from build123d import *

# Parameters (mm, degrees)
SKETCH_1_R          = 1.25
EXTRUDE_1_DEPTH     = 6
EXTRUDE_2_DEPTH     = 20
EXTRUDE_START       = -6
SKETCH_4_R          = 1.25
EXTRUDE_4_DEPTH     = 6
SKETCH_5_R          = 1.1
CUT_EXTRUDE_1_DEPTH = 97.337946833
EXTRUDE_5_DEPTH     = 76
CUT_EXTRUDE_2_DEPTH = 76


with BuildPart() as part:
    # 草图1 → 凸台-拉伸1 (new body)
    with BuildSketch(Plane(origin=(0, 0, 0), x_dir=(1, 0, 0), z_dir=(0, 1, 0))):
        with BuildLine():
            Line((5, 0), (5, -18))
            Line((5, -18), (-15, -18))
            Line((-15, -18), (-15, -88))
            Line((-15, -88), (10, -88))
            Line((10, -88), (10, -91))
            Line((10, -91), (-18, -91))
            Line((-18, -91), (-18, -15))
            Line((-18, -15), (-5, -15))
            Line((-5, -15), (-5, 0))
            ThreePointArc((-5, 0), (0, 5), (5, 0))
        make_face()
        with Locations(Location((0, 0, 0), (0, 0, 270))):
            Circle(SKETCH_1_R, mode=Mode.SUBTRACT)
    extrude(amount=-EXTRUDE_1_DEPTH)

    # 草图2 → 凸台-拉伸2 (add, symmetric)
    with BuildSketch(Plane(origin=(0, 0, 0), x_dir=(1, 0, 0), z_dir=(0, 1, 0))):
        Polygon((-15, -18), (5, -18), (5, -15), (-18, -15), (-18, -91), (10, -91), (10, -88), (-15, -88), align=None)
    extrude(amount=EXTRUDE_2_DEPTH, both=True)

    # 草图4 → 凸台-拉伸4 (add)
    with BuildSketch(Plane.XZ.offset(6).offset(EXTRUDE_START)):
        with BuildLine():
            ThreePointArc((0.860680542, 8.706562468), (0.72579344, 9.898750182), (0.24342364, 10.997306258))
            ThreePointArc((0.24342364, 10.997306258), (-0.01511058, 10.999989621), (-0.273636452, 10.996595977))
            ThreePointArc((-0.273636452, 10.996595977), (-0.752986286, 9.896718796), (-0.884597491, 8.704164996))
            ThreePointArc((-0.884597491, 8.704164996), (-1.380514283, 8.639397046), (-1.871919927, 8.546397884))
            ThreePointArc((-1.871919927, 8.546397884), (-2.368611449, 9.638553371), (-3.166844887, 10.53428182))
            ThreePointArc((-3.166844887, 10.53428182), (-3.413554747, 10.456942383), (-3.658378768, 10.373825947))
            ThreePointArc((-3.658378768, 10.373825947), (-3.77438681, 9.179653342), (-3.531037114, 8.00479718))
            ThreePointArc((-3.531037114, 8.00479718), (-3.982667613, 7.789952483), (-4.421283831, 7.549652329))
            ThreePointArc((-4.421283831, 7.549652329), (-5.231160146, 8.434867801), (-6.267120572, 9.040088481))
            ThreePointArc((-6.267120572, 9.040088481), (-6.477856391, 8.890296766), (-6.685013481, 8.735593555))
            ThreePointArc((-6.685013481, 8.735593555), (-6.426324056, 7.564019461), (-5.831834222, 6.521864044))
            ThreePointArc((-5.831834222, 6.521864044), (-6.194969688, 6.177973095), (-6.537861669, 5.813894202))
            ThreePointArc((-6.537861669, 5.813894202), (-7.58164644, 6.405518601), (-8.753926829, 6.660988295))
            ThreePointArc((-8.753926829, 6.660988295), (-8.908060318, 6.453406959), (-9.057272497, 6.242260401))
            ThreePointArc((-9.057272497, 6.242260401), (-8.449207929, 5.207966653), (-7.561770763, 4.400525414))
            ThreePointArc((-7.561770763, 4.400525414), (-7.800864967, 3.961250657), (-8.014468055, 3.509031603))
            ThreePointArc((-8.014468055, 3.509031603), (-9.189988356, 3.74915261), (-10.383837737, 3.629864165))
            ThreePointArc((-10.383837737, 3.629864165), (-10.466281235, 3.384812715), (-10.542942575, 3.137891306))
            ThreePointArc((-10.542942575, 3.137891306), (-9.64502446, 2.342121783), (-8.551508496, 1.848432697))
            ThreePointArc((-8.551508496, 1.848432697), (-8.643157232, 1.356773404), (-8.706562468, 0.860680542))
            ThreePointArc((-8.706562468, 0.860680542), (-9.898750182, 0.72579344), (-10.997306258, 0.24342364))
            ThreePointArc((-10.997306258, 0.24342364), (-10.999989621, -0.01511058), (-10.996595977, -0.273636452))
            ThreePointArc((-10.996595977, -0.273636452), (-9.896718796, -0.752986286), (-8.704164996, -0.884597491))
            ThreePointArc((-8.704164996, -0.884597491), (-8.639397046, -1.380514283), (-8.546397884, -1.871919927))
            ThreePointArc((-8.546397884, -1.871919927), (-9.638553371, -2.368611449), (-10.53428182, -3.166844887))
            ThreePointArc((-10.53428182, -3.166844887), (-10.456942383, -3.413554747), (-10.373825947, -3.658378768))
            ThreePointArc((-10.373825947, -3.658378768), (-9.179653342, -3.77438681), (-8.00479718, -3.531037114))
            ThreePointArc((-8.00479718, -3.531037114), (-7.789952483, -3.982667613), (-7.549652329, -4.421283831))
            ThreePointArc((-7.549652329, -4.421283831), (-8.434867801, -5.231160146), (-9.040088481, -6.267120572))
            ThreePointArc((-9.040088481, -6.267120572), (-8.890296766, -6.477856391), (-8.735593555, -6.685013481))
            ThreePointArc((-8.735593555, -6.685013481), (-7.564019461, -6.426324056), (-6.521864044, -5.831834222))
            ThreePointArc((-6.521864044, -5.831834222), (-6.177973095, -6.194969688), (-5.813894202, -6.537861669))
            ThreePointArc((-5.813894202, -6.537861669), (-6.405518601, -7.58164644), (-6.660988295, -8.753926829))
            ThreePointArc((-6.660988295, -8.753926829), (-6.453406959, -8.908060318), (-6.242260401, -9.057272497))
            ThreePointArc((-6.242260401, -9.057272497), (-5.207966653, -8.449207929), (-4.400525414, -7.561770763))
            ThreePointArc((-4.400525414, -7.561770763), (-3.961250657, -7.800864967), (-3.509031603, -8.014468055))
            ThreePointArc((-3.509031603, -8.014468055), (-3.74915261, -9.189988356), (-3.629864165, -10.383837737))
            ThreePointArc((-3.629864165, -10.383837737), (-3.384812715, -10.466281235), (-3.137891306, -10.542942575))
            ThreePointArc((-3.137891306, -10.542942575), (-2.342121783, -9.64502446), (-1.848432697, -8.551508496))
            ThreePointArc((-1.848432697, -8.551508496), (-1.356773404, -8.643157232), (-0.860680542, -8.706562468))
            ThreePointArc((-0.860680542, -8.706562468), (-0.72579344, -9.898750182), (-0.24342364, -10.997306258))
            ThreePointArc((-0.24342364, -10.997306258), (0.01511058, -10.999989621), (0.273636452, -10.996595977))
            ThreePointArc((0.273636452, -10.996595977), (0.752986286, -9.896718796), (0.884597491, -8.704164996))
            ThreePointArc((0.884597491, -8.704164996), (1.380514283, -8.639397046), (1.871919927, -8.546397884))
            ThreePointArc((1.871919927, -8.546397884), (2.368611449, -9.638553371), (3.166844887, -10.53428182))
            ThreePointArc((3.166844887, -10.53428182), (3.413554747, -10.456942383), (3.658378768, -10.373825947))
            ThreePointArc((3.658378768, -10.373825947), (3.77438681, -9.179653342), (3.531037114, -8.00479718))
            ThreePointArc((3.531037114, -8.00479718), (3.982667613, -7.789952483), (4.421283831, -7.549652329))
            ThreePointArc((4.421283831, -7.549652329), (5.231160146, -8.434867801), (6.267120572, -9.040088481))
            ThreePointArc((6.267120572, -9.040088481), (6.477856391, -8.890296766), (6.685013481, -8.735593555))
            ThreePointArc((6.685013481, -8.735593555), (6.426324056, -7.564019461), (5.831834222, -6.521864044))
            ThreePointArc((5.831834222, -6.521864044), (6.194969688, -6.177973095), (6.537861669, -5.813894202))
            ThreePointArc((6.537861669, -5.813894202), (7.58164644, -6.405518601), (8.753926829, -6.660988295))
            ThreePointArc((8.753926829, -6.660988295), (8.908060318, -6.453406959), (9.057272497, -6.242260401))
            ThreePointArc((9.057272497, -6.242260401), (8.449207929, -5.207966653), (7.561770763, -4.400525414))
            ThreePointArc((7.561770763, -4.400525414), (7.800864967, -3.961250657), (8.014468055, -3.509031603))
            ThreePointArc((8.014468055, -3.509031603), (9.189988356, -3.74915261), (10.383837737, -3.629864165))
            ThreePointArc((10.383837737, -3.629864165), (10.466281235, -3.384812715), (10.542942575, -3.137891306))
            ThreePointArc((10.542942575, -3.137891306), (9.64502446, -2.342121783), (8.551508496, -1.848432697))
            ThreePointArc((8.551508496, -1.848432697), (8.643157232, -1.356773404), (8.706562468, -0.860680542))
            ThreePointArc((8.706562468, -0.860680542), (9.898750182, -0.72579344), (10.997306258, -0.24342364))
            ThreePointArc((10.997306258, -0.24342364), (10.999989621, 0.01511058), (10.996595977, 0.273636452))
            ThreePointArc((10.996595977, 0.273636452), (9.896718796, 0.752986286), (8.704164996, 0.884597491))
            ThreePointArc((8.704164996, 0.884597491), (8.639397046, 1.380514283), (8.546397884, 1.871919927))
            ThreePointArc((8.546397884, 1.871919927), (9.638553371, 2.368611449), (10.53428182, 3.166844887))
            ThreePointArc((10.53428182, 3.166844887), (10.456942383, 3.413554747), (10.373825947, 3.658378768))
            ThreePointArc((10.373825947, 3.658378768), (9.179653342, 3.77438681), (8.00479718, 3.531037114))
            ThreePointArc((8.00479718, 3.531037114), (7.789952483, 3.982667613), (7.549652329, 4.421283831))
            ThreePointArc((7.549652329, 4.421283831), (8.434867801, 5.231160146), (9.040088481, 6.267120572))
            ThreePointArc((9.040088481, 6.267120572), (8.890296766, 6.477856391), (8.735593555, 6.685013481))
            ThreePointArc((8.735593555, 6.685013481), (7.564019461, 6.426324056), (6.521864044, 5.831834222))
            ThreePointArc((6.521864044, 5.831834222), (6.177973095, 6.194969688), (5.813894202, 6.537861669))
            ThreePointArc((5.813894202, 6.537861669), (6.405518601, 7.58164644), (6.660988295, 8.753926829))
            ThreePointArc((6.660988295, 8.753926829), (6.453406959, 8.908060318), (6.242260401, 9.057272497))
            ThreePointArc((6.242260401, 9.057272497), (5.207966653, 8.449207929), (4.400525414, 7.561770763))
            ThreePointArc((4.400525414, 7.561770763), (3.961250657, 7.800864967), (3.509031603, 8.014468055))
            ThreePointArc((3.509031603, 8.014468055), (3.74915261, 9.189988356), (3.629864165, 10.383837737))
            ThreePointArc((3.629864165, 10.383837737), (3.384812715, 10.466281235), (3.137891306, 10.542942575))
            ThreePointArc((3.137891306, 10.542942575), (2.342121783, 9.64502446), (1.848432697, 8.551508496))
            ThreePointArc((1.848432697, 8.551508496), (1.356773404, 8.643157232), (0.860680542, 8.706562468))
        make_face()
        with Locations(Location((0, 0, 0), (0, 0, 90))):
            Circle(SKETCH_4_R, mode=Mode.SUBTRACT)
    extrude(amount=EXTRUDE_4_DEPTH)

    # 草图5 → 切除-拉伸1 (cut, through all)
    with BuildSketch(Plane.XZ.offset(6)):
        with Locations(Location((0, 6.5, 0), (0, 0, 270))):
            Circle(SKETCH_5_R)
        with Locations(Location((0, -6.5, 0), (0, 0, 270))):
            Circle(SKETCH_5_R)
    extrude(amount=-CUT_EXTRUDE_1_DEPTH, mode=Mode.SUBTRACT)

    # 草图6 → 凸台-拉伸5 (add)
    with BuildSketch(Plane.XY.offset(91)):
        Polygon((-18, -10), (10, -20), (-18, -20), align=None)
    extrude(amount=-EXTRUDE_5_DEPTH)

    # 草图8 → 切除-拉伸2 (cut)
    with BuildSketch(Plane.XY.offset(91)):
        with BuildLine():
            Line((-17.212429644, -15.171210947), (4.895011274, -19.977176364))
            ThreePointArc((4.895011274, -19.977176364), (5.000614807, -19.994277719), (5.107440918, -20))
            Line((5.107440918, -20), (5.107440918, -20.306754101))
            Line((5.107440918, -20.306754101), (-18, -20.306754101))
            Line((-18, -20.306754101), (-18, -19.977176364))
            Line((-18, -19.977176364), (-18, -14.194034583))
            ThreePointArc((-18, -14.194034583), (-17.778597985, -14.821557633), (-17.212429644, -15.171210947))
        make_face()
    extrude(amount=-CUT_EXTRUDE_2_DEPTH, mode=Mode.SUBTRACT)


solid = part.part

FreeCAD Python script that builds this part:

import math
import FreeCAD as App
import Part
import Sketcher
from FreeCAD import Vector
Q = App.Units.Quantity


def add_polygon(sketch, points):
    """Adds a closed chain of lines whose ends are joined by coincident constraints."""
    first, n = sketch.GeometryCount, len(points)
    for a, b in zip(points, points[1:] + points[:1]):
        sketch.addGeometry(Part.LineSegment(App.Vector(*a, 0), App.Vector(*b, 0)), False)
    for i in range(n):
        sketch.addConstraint(Sketcher.Constraint("Coincident", first + i, 2, first + (i + 1) % n, 1))

doc = App.newDocument("Part")
body = doc.addObject("PartDesign::Body", "Body")

# Sketch on XZ plane
sketch1 = body.newObject("Sketcher::SketchObject", "Sketch")
sketch1.AttachmentSupport = (doc.getObject("XZ_Plane"), [""])
sketch1.MapMode = "FlatFace"
sketch1.addGeometry([
    Part.LineSegment(Vector(5, 18, 0), Vector(5, 0, 0)),  # 0
    Part.ArcOfCircle(Part.Circle(Vector(0, 0, 0), Vector(0, 0, 1), 5), math.radians(180), math.radians(360)),  # 1
    Part.LineSegment(Vector(-5, 0, 0), Vector(-5, 15, 0)),  # 2
    Part.LineSegment(Vector(-5, 15, 0), Vector(-18, 15, 0)),  # 3
    Part.LineSegment(Vector(-18, 15, 0), Vector(-18, 91, 0)),  # 4
    Part.LineSegment(Vector(-18, 91, 0), Vector(10, 91, 0)),  # 5
    Part.LineSegment(Vector(10, 91, 0), Vector(10, 88, 0)),  # 6
    Part.LineSegment(Vector(10, 88, 0), Vector(-15, 88, 0)),  # 7
    Part.LineSegment(Vector(-15, 88, 0), Vector(-15, 18, 0)),  # 8
    Part.LineSegment(Vector(-15, 18, 0), Vector(5, 18, 0)),  # 9
    Part.Circle(Vector(0, 0, 0), Vector(0, 0, 1), 1.2),  # 10
], False)
sketch1.addConstraint([
    Sketcher.Constraint("Tangent", 0, 2, 1, 2),
    Sketcher.Constraint("Tangent", 1, 1, 2, 1),
    Sketcher.Constraint("Coincident", 2, 2, 3, 1),
    Sketcher.Constraint("Coincident", 3, 2, 4, 1),
    Sketcher.Constraint("Coincident", 4, 2, 5, 1),
    Sketcher.Constraint("Coincident", 5, 2, 6, 1),
    Sketcher.Constraint("Coincident", 6, 2, 7, 1),
    Sketcher.Constraint("Coincident", 7, 2, 8, 1),
    Sketcher.Constraint("Coincident", 8, 2, 9, 1),
    Sketcher.Constraint("Coincident", 9, 2, 0, 1),
    Sketcher.Constraint("Vertical", 0),
    Sketcher.Constraint("Vertical", 2),
    Sketcher.Constraint("Horizontal", 3),
    Sketcher.Constraint("Vertical", 4),
    Sketcher.Constraint("Horizontal", 5),
    Sketcher.Constraint("Vertical", 6),
    Sketcher.Constraint("Horizontal", 7),
    Sketcher.Constraint("Vertical", 8),
    Sketcher.Constraint("Horizontal", 9),
    Sketcher.Constraint("Coincident", 1, 3, -1, 1),
    Sketcher.Constraint("Coincident", 10, 3, -1, 1),
    Sketcher.Constraint("Radius", 1, Q("5 mm")),
    Sketcher.Constraint("Diameter", 10, Q("2.5 mm")),
    Sketcher.Constraint("DistanceX", 3, 2, 3, 1, Q("13 mm")),
    Sketcher.Constraint("DistanceX", 5, 1, 5, 2, Q("28 mm")),
    Sketcher.Constraint("DistanceX", 7, 2, 7, 1, Q("25 mm")),
    Sketcher.Constraint("DistanceY", 0, 2, 0, 1, Q("18 mm")),
    Sketcher.Constraint("DistanceY", 2, 1, 2, 2, Q("15 mm")),
    Sketcher.Constraint("DistanceY", 4, 1, 4, 2, Q("76 mm")),
    Sketcher.Constraint("DistanceY", 6, 2, 6, 1, Q("3 mm")),
])
pad1 = body.newObject("PartDesign::Pad", "Pad")
pad1.Profile = sketch1
pad1.Length = 6

# Sketch on XZ plane
sketch2 = body.newObject("Sketcher::SketchObject", "Sketch001")
sketch2.AttachmentSupport = (doc.getObject("XZ_Plane"), [""])
sketch2.MapMode = "FlatFace"
add_polygon(sketch2, [(-15, 18), (5, 18), (5, 15), (-18, 15), (-18, 91), (10, 91), (10, 88), (-15, 88)])  # lines 0-7
sketch2.addConstraint([
    Sketcher.Constraint("Horizontal", 0),
    Sketcher.Constraint("Vertical", 1),
    Sketcher.Constraint("Horizontal", 2),
    Sketcher.Constraint("Vertical", 3),
    Sketcher.Constraint("Horizontal", 4),
    Sketcher.Constraint("Vertical", 5),
    Sketcher.Constraint("Horizontal", 6),
    Sketcher.Constraint("Vertical", 7),
    Sketcher.Constraint("Equal", 1, 5),
    Sketcher.Constraint("DistanceX", 0, 1, 0, 2, Q("20 mm")),
    Sketcher.Constraint("DistanceX", 2, 2, 2, 1, Q("23 mm")),
    Sketcher.Constraint("DistanceX", 4, 1, 4, 2, Q("28 mm")),
    Sketcher.Constraint("DistanceY", 1, 2, 1, 1, Q("3 mm")),
    Sketcher.Constraint("DistanceY", 3, 1, 3, 2, Q("76 mm")),
    Sketcher.Constraint("DistanceX", -1, 1, 0, 2, Q("5 mm")),
    Sketcher.Constraint("DistanceY", -1, 1, 0, 2, Q("18 mm")),
])
pad2 = body.newObject("PartDesign::Pad", "Pad001")
pad2.Profile = sketch2
pad2.Length = 40
pad2.Midplane = True

# Sketch on XZ plane
sketch3 = body.newObject("Sketcher::SketchObject", "Sketch002")
sketch3.AttachmentSupport = (doc.getObject("XZ_Plane"), [""])
sketch3.MapMode = "FlatFace"
sketch3.addGeometry([
    Part.ArcOfCircle(Part.Circle(Vector(-3.1, 8.9, 0), Vector(0, 0, 1), 4), math.radians(-2), math.radians(32)),  # 0
    Part.ArcOfCircle(Part.Circle(Vector(0, 0, 0), Vector(0, 0, 1), 11), math.radians(88.73), math.radians(91.43)),  # 1
    Part.ArcOfCircle(Part.Circle(Vector(3.1, 8.9, 0), Vector(0, 0, 1), 4), math.radians(148), math.radians(182)),  # 2
    Part.ArcOfCircle(Part.Circle(Vector(0, 0, 0), Vector(0, 0, 1), 8.7), math.radians(95.8), math.radians(102.35)),  # 3
    Part.ArcOfCircle(Part.Circle(Vector(-5.7, 7.5, 0), Vector(0, 0, 1), 4), math.radians(16), math.radians(50)),  # 4
    Part.ArcOfCircle(Part.Circle(Vector(0, 0, 0), Vector(0, 0, 1), 11), math.radians(106.73), math.radians(109.43)),  # 5
    Part.ArcOfCircle(Part.Circle(Vector(0.2, 9.4, 0), Vector(0, 0, 1), 4), math.radians(166), math.radians(200)),  # 6
    Part.ArcOfCircle(Part.Circle(Vector(0, 0, 0), Vector(0, 0, 1), 8.7), math.radians(113.8), math.radians(120.35)),  # 7
    Part.ArcOfCircle(Part.Circle(Vector(-7.7, 5.3, 0), Vector(0, 0, 1), 4), math.radians(34), math.radians(68)),  # 8
    Part.ArcOfCircle(Part.Circle(Vector(0, 0, 0), Vector(0, 0, 1), 11), math.radians(124.73), math.radians(127.43)),  # 9
    Part.ArcOfCircle(Part.Circle(Vector(-2.7, 9, 0), Vector(0, 0, 1), 4), math.radians(-176), math.radians(-142)),  # 10
    Part.ArcOfCircle(Part.Circle(Vector(0, 0, 0), Vector(0, 0, 1), 8.7), math.radians(131.8), math.radians(138.35)),  # 11
    Part.ArcOfCircle(Part.Circle(Vector(-9, 2.7, 0), Vector(0, 0, 1), 4), math.radians(52), math.radians(86)),  # 12
    Part.ArcOfCircle(Part.Circle(Vector(0, 0, 0), Vector(0, 0, 1), 11), math.radians(142.73), math.radians(145.43)),  # 13
    Part.ArcOfCircle(Part.Circle(Vector(-5.3, 7.7, 0), Vector(0, 0, 1), 4), math.radians(-158), math.radians(-124)),  # 14
    Part.ArcOfCircle(Part.Circle(Vector(0, 0, 0), Vector(0, 0, 1), 8.7), math.radians(149.8), math.radians(156.35)),  # 15
    Part.ArcOfCircle(Part.Circle(Vector(-9.4, -0.2, 0), Vector(0, 0, 1), 4), math.radians(70), math.radians(104)),  # 16
    Part.ArcOfCircle(Part.Circle(Vector(0, 0, 0), Vector(0, 0, 1), 11), math.radians(160.73), math.radians(163.43)),  # 17
    Part.ArcOfCircle(Part.Circle(Vector(-7.5, 5.7, 0), Vector(0, 0, 1), 4), math.radians(-140), math.radians(-106)),  # 18
    Part.ArcOfCircle(Part.Circle(Vector(0, 0, 0), Vector(0, 0, 1), 8.7), math.radians(167.8), math.radians(174.35)),  # 19
    Part.ArcOfCircle(Part.Circle(Vector(-8.9, -3.1, 0), Vector(0, 0, 1), 4), math.radians(88), math.radians(122)),  # 20
    Part.ArcOfCircle(Part.Circle(Vector(0, 0, 0), Vector(0, 0, 1), 11), math.radians(178.73), math.radians(181.43)),  # 21
    Part.ArcOfCircle(Part.Circle(Vector(-8.9, 3.1, 0), Vector(0, 0, 1), 4), math.radians(-122), math.radians(-88)),  # 22
    Part.ArcOfCircle(Part.Circle(Vector(0, 0, 0), Vector(0, 0, 1), 8.7), math.radians(-174.2), math.radians(-167.65)),  # 23
    Part.ArcOfCircle(Part.Circle(Vector(-7.5, -5.7, 0), Vector(0, 0, 1), 4), math.radians(106), math.radians(140)),  # 24
    Part.ArcOfCircle(Part.Circle(Vector(0, 0, 0), Vector(0, 0, 1), 11), math.radians(-163.27), math.radians(-160.57)),  # 25
    Part.ArcOfCircle(Part.Circle(Vector(-9.4, 0.2, 0), Vector(0, 0, 1), 4), math.radians(-104), math.radians(-70)),  # 26
    Part.ArcOfCircle(Part.Circle(Vector(0, 0, 0), Vector(0, 0, 1), 8.7), math.radians(-156.2), math.radians(-149.65)),  # 27
    Part.ArcOfCircle(Part.Circle(Vector(-5.3, -7.7, 0), Vector(0, 0, 1), 4), math.radians(124), math.radians(158)),  # 28
    Part.ArcOfCircle(Part.Circle(Vector(0, 0, 0), Vector(0, 0, 1), 11), math.radians(-145.27), math.radians(-142.57)),  # 29
    Part.ArcOfCircle(Part.Circle(Vector(-9, -2.7, 0), Vector(0, 0, 1), 4), math.radians(-86), math.radians(-52)),  # 30
    Part.ArcOfCircle(Part.Circle(Vector(0, 0, 0), Vector(0, 0, 1), 8.7), math.radians(-138.2), math.radians(-131.65)),  # 31
    Part.ArcOfCircle(Part.Circle(Vector(-2.7, -9, 0), Vector(0, 0, 1), 4), math.radians(142), math.radians(176)),  # 32
    Part.ArcOfCircle(Part.Circle(Vector(0, 0, 0), Vector(0, 0, 1), 11), math.radians(-127.27), math.radians(-124.57)),  # 33
    Part.ArcOfCircle(Part.Circle(Vector(-7.7, -5.3, 0), Vector(0, 0, 1), 4), math.radians(-68), math.radians(-34)),  # 34
    Part.ArcOfCircle(Part.Circle(Vector(0, 0, 0), Vector(0, 0, 1), 8.7), math.radians(-120.2), math.radians(-113.65)),  # 35
    Part.ArcOfCircle(Part.Circle(Vector(0.2, -9.4, 0), Vector(0, 0, 1), 4), math.radians(160), math.radians(194)),  # 36
    Part.ArcOfCircle(Part.Circle(Vector(0, 0, 0), Vector(0, 0, 1), 11), math.radians(-109.27), math.radians(-106.57)),  # 37
    Part.ArcOfCircle(Part.Circle(Vector(-5.7, -7.5, 0), Vector(0, 0, 1), 4), math.radians(-50), math.radians(-16)),  # 38
    Part.ArcOfCircle(Part.Circle(Vector(0, 0, 0), Vector(0, 0, 1), 8.7), math.radians(-102.2), math.radians(-95.65)),  # 39
    Part.ArcOfCircle(Part.Circle(Vector(3.1, -8.9, 0), Vector(0, 0, 1), 4), math.radians(178), math.radians(212)),  # 40
    Part.ArcOfCircle(Part.Circle(Vector(0, 0, 0), Vector(0, 0, 1), 11), math.radians(-91.27), math.radians(-88.57)),  # 41
    Part.ArcOfCircle(Part.Circle(Vector(-3.1, -8.9, 0), Vector(0, 0, 1), 4), math.radians(-32), math.radians(2)),  # 42
    Part.ArcOfCircle(Part.Circle(Vector(0, 0, 0), Vector(0, 0, 1), 8.7), math.radians(-84.2), math.radians(-77.65)),  # 43
    Part.ArcOfCircle(Part.Circle(Vector(5.7, -7.5, 0), Vector(0, 0, 1), 4), math.radians(-164), math.radians(-130)),  # 44
    Part.ArcOfCircle(Part.Circle(Vector(0, 0, 0), Vector(0, 0, 1), 11), math.radians(-73.27), math.radians(-70.57)),  # 45
    Part.ArcOfCircle(Part.Circle(Vector(-0.2, -9.4, 0), Vector(0, 0, 1), 4), math.radians(-14), math.radians(20)),  # 46
    Part.ArcOfCircle(Part.Circle(Vector(0, 0, 0), Vector(0, 0, 1), 8.7), math.radians(-66.2), math.radians(-59.65)),  # 47
    Part.ArcOfCircle(Part.Circle(Vector(7.7, -5.3, 0), Vector(0, 0, 1), 4), math.radians(-146), math.radians(-112)),  # 48
    Part.ArcOfCircle(Part.Circle(Vector(0, 0, 0), Vector(0, 0, 1), 11), math.radians(-55.27), math.radians(-52.57)),  # 49
    Part.ArcOfCircle(Part.Circle(Vector(2.7, -9, 0), Vector(0, 0, 1), 4), math.radians(4), math.radians(38)),  # 50
    Part.ArcOfCircle(Part.Circle(Vector(0, 0, 0), Vector(0, 0, 1), 8.7), math.radians(-48.2), math.radians(-41.65)),  # 51
    Part.ArcOfCircle(Part.Circle(Vector(9, -2.7, 0), Vector(0, 0, 1), 4), math.radians(-128), math.radians(-94)),  # 52
    Part.ArcOfCircle(Part.Circle(Vector(0, 0, 0), Vector(0, 0, 1), 11), math.radians(-37.27), math.radians(-34.57)),  # 53
    Part.ArcOfCircle(Part.Circle(Vector(5.3, -7.7, 0), Vector(0, 0, 1), 4), math.radians(22), math.radians(56)),  # 54
    Part.ArcOfCircle(Part.Circle(Vector(0, 0, 0), Vector(0, 0, 1), 8.7), math.radians(-30.2), math.radians(-23.65)),  # 55
    Part.ArcOfCircle(Part.Circle(Vector(9.4, 0.2, 0), Vector(0, 0, 1), 4), math.radians(-110), math.radians(-76)),  # 56
    Part.ArcOfCircle(Part.Circle(Vector(0, 0, 0), Vector(0, 0, 1), 11), math.radians(-19.27), math.radians(-16.57)),  # 57
    Part.ArcOfCircle(Part.Circle(Vector(7.5, -5.7, 0), Vector(0, 0, 1), 4), math.radians(40), math.radians(74)),  # 58
    Part.ArcOfCircle(Part.Circle(Vector(0, 0, 0), Vector(0, 0, 1), 8.7), math.radians(-12.2), math.radians(-5.65)),  # 59
    Part.ArcOfCircle(Part.Circle(Vector(8.9, 3.1, 0), Vector(0, 0, 1), 4), math.radians(-92), math.radians(-58)),  # 60
    Part.ArcOfCircle(Part.Circle(Vector(0, 0, 0), Vector(0, 0, 1), 11), math.radians(-1.27), math.radians(1.43)),  # 61
    Part.ArcOfCircle(Part.Circle(Vector(8.9, -3.1, 0), Vector(0, 0, 1), 4), math.radians(58), math.radians(92)),  # 62
    Part.ArcOfCircle(Part.Circle(Vector(0, 0, 0), Vector(0, 0, 1), 8.7), math.radians(5.8), math.radians(12.35)),  # 63
    Part.ArcOfCircle(Part.Circle(Vector(7.5, 5.7, 0), Vector(0, 0, 1), 4), math.radians(-74), math.radians(-40)),  # 64
    Part.ArcOfCircle(Part.Circle(Vector(0, 0, 0), Vector(0, 0, 1), 11), math.radians(16.73), math.radians(19.43)),  # 65
    Part.ArcOfCircle(Part.Circle(Vector(9.4, -0.2, 0), Vector(0, 0, 1), 4), math.radians(76), math.radians(110)),  # 66
    Part.ArcOfCircle(Part.Circle(Vector(0, 0, 0), Vector(0, 0, 1), 8.7), math.radians(23.8), math.radians(30.35)),  # 67
    Part.ArcOfCircle(Part.Circle(Vector(5.3, 7.7, 0), Vector(0, 0, 1), 4), math.radians(-56), math.radians(-22)),  # 68
    Part.ArcOfCircle(Part.Circle(Vector(0, 0, 0), Vector(0, 0, 1), 11), math.radians(34.73), math.radians(37.43)),  # 69
    Part.ArcOfCircle(Part.Circle(Vector(9, 2.7, 0), Vector(0, 0, 1), 4), math.radians(94), math.radians(128)),  # 70
    Part.ArcOfCircle(Part.Circle(Vector(0, 0, 0), Vector(0, 0, 1), 8.7), math.radians(41.8), math.radians(48.35)),  # 71
    Part.ArcOfCircle(Part.Circle(Vector(2.7, 9, 0), Vector(0, 0, 1), 4), math.radians(-38), math.radians(-4)),  # 72
    Part.ArcOfCircle(Part.Circle(Vector(0, 0, 0), Vector(0, 0, 1), 11), math.radians(52.73), math.radians(55.43)),  # 73
    Part.ArcOfCircle(Part.Circle(Vector(7.7, 5.3, 0), Vector(0, 0, 1), 4), math.radians(112), math.radians(146)),  # 74
    Part.ArcOfCircle(Part.Circle(Vector(0, 0, 0), Vector(0, 0, 1), 8.7), math.radians(59.8), math.radians(66.35)),  # 75
    Part.ArcOfCircle(Part.Circle(Vector(-0.2, 9.4, 0), Vector(0, 0, 1), 4), math.radians(-20), math.radians(14)),  # 76
    Part.ArcOfCircle(Part.Circle(Vector(0, 0, 0), Vector(0, 0, 1), 11), math.radians(70.73), math.radians(73.43)),  # 77
    Part.ArcOfCircle(Part.Circle(Vector(5.7, 7.5, 0), Vector(0, 0, 1), 4), math.radians(130), math.radians(164)),  # 78
    Part.ArcOfCircle(Part.Circle(Vector(0, 0, 0), Vector(0, 0, 1), 8.7), math.radians(77.8), math.radians(84.35)),  # 79
    Part.Circle(Vector(0, 0, 0), Vector(0, 0, 1), 1.2),  # 80
], False)
sketch3.addConstraint([
    Sketcher.Constraint("Coincident", 0, 2, 1, 1),
    Sketcher.Constraint("Coincident", 1, 2, 2, 1),
    Sketcher.Constraint("Coincident", 2, 2, 3, 1),
    Sketcher.Constraint("Coincident", 3, 2, 4, 1),
    Sketcher.Constraint("Coincident", 4, 2, 5, 1),
    Sketcher.Constraint("Coincident", 5, 2, 6, 1),
    Sketcher.Constraint("Coincident", 6, 2, 7, 1),
    Sketcher.Constraint("Coincident", 7, 2, 8, 1),
    Sketcher.Constraint("Coincident", 8, 2, 9, 1),
    Sketcher.Constraint("Coincident", 9, 2, 10, 1),
    Sketcher.Constraint("Coincident", 10, 2, 11, 1),
    Sketcher.Constraint("Coincident", 11, 2, 12, 1),
    Sketcher.Constraint("Coincident", 12, 2, 13, 1),
    Sketcher.Constraint("Coincident", 13, 2, 14, 1),
    Sketcher.Constraint("Coincident", 14, 2, 15, 1),
    Sketcher.Constraint("Coincident", 15, 2, 16, 1),
    Sketcher.Constraint("Coincident", 16, 2, 17, 1),
    Sketcher.Constraint("Coincident", 17, 2, 18, 1),
    Sketcher.Constraint("Coincident", 18, 2, 19, 1),
    Sketcher.Constraint("Coincident", 19, 2, 20, 1),
    Sketcher.Constraint("Coincident", 20, 2, 21, 1),
    Sketcher.Constraint("Coincident", 21, 2, 22, 1),
    Sketcher.Constraint("Coincident", 22, 2, 23, 1),
    Sketcher.Constraint("Coincident", 23, 2, 24, 1),
    Sketcher.Constraint("Coincident", 24, 2, 25, 1),
    Sketcher.Constraint("Coincident", 25, 2, 26, 1),
    Sketcher.Constraint("Coincident", 26, 2, 27, 1),
    Sketcher.Constraint("Coincident", 27, 2, 28, 1),
    Sketcher.Constraint("Coincident", 28, 2, 29, 1),
    Sketcher.Constraint("Coincident", 29, 2, 30, 1),
    Sketcher.Constraint("Coincident", 30, 2, 31, 1),
    Sketcher.Constraint("Coincident", 31, 2, 32, 1),
    Sketcher.Constraint("Coincident", 32, 2, 33, 1),
    Sketcher.Constraint("Coincident", 33, 2, 34, 1),
    Sketcher.Constraint("Coincident", 34, 2, 35, 1),
    Sketcher.Constraint("Coincident", 35, 2, 36, 1),
    Sketcher.Constraint("Coincident", 36, 2, 37, 1),
    Sketcher.Constraint("Coincident", 37, 2, 38, 1),
    Sketcher.Constraint("Coincident", 38, 2, 39, 1),
    Sketcher.Constraint("Coincident", 39, 2, 40, 1),
    Sketcher.Constraint("Coincident", 40, 2, 41, 1),
    Sketcher.Constraint("Coincident", 41, 2, 42, 1),
    Sketcher.Constraint("Coincident", 42, 2, 43, 1),
    Sketcher.Constraint("Coincident", 43, 2, 44, 1),
    Sketcher.Constraint("Coincident", 44, 2, 45, 1),
    Sketcher.Constraint("Coincident", 45, 2, 46, 1),
    Sketcher.Constraint("Coincident", 46, 2, 47, 1),
    Sketcher.Constraint("Coincident", 47, 2, 48, 1),
    Sketcher.Constraint("Coincident", 48, 2, 49, 1),
    Sketcher.Constraint("Coincident", 49, 2, 50, 1),
    Sketcher.Constraint("Coincident", 50, 2, 51, 1),
    Sketcher.Constraint("Coincident", 51, 2, 52, 1),
    Sketcher.Constraint("Coincident", 52, 2, 53, 1),
    Sketcher.Constraint("Coincident", 53, 2, 54, 1),
    Sketcher.Constraint("Coincident", 54, 2, 55, 1),
    Sketcher.Constraint("Coincident", 55, 2, 56, 1),
    Sketcher.Constraint("Coincident", 56, 2, 57, 1),
    Sketcher.Constraint("Coincident", 57, 2, 58, 1),
    Sketcher.Constraint("Coincident", 58, 2, 59, 1),
    Sketcher.Constraint("Coincident", 59, 2, 60, 1),
    Sketcher.Constraint("Coincident", 60, 2, 61, 1),
    Sketcher.Constraint("Coincident", 61, 2, 62, 1),
    Sketcher.Constraint("Coincident", 62, 2, 63, 1),
    Sketcher.Constraint("Coincident", 63, 2, 64, 1),
    Sketcher.Constraint("Coincident", 64, 2, 65, 1),
    Sketcher.Constraint("Coincident", 65, 2, 66, 1),
    Sketcher.Constraint("Coincident", 66, 2, 67, 1),
    Sketcher.Constraint("Coincident", 67, 2, 68, 1),
    Sketcher.Constraint("Coincident", 68, 2, 69, 1),
    Sketcher.Constraint("Coincident", 69, 2, 70, 1),
    Sketcher.Constraint("Coincident", 70, 2, 71, 1),
    Sketcher.Constraint("Coincident", 71, 2, 72, 1),
    Sketcher.Constraint("Coincident", 72, 2, 73, 1),
    Sketcher.Constraint("Coincident", 73, 2, 74, 1),
    Sketcher.Constraint("Coincident", 74, 2, 75, 1),
    Sketcher.Constraint("Coincident", 75, 2, 76, 1),
    Sketcher.Constraint("Coincident", 76, 2, 77, 1),
    Sketcher.Constraint("Coincident", 77, 2, 78, 1),
    Sketcher.Constraint("Coincident", 78, 2, 79, 1),
    Sketcher.Constraint("Coincident", 79, 2, 0, 1),
    Sketcher.Constraint("Coincident", 1, 3, -1, 1),
    Sketcher.Constraint("Coincident", 3, 3, -1, 1),
    Sketcher.Constraint("Coincident", 5, 3, -1, 1),
    Sketcher.Constraint("Coincident", 7, 3, -1, 1),
    Sketcher.Constraint("Coincident", 9, 3, -1, 1),
    Sketcher.Constraint("Coincident", 11, 3, -1, 1),
    Sketcher.Constraint("Coincident", 13, 3, -1, 1),
    Sketcher.Constraint("Coincident", 15, 3, -1, 1),
    Sketcher.Constraint("Coincident", 17, 3, -1, 1),
    Sketcher.Constraint("Coincident", 19, 3, -1, 1),
    Sketcher.Constraint("Coincident", 21, 3, -1, 1),
    Sketcher.Constraint("Coincident", 23, 3, -1, 1),
    Sketcher.Constraint("Coincident", 25, 3, -1, 1),
    Sketcher.Constraint("Coincident", 27, 3, -1, 1),
    Sketcher.Constraint("Coincident", 29, 3, -1, 1),
    Sketcher.Constraint("Coincident", 31, 3, -1, 1),
    Sketcher.Constraint("Coincident", 33, 3, -1, 1),
    Sketcher.Constraint("Coincident", 35, 3, -1, 1),
    Sketcher.Constraint("Coincident", 37, 3, -1, 1),
    Sketcher.Constraint("Coincident", 39, 3, -1, 1),
    Sketcher.Constraint("Coincident", 41, 3, -1, 1),
    Sketcher.Constraint("Coincident", 43, 3, -1, 1),
    Sketcher.Constraint("Coincident", 45, 3, -1, 1),
    Sketcher.Constraint("Coincident", 47, 3, -1, 1),
    Sketcher.Constraint("Coincident", 49, 3, -1, 1),
    Sketcher.Constraint("Coincident", 51, 3, -1, 1),
    Sketcher.Constraint("Coincident", 53, 3, -1, 1),
    Sketcher.Constraint("Coincident", 55, 3, -1, 1),
    Sketcher.Constraint("Coincident", 57, 3, -1, 1),
    Sketcher.Constraint("Coincident", 59, 3, -1, 1),
    Sketcher.Constraint("Coincident", 61, 3, -1, 1),
    Sketcher.Constraint("Coincident", 63, 3, -1, 1),
    Sketcher.Constraint("Coincident", 65, 3, -1, 1),
    Sketcher.Constraint("Coincident", 67, 3, -1, 1),
    Sketcher.Constraint("Coincident", 69, 3, -1, 1),
    Sketcher.Constraint("Coincident", 71, 3, -1, 1),
    Sketcher.Constraint("Coincident", 73, 3, -1, 1),
    Sketcher.Constraint("Coincident", 75, 3, -1, 1),
    Sketcher.Constraint("Coincident", 77, 3, -1, 1),
    Sketcher.Constraint("Coincident", 79, 3, -1, 1),
    Sketcher.Constraint("Coincident", 80, 3, -1, 1),
    Sketcher.Constraint("Equal", 0, 2),
    Sketcher.Constraint("Equal", 2, 4),
    Sketcher.Constraint("Equal", 4, 6),
    Sketcher.Constraint("Equal", 3, 7),
    Sketcher.Constraint("Equal", 6, 8),
    Sketcher.Constraint("Equal", 5, 9),
    Sketcher.Constraint("Equal", 8, 10),
    Sketcher.Constraint("Equal", 7, 11),
    Sketcher.Constraint("Equal", 10, 12),
    Sketcher.Constraint("Equal", 9, 13),
    Sketcher.Constraint("Equal", 12, 14),
    Sketcher.Constraint("Equal", 11, 15),
    Sketcher.Constraint("Equal", 14, 16),
    Sketcher.Constraint("Equal", 13, 17),
    Sketcher.Constraint("Equal", 16, 18),
    Sketcher.Constraint("Equal", 15, 19),
    Sketcher.Constraint("Equal", 18, 20),
    Sketcher.Constraint("Equal", 9, 21),
    Sketcher.Constraint("Equal", 20, 22),
    Sketcher.Constraint("Equal", 19, 23),
    Sketcher.Constraint("Equal", 22, 24),
    Sketcher.Constraint("Equal", 17, 25),
    Sketcher.Constraint("Equal", 24, 26),
    Sketcher.Constraint("Equal", 23, 27),
    Sketcher.Constraint("Equal", 26, 28),
    Sketcher.Constraint("Equal", 25, 29),
    Sketcher.Constraint("Equal", 28, 30),
    Sketcher.Constraint("Equal", 27, 31),
    Sketcher.Constraint("Equal", 30, 32),
    Sketcher.Constraint("Equal", 29, 33),
    Sketcher.Constraint("Equal", 32, 34),
    Sketcher.Constraint("Equal", 31, 35),
    Sketcher.Constraint("Equal", 34, 36),
    Sketcher.Constraint("Equal", 33, 37),
    Sketcher.Constraint("Equal", 36, 38),
    Sketcher.Constraint("Equal", 35, 39),
    Sketcher.Constraint("Equal", 38, 40),
    Sketcher.Constraint("Equal", 29, 41),
    Sketcher.Constraint("Equal", 40, 42),
    Sketcher.Constraint("Equal", 39, 43),
    Sketcher.Constraint("Equal", 42, 44),
    Sketcher.Constraint("Equal", 37, 45),
    Sketcher.Constraint("Equal", 44, 46),
    Sketcher.Constraint("Equal", 43, 47),
    Sketcher.Constraint("Equal", 46, 48),
    Sketcher.Constraint("Equal", 45, 49),
    Sketcher.Constraint("Equal", 48, 50),
    Sketcher.Constraint("Equal", 47, 51),
    Sketcher.Constraint("Equal", 50, 52),
    Sketcher.Constraint("Equal", 49, 53),
    Sketcher.Constraint("Equal", 52, 54),
    Sketcher.Constraint("Equal", 51, 55),
    Sketcher.Constraint("Equal", 54, 56),
    Sketcher.Constraint("Equal", 53, 57),
    Sketcher.Constraint("Equal", 56, 58),
    Sketcher.Constraint("Equal", 55, 59),
    Sketcher.Constraint("Equal", 58, 60),
    Sketcher.Constraint("Equal", 49, 61),
    Sketcher.Constraint("Equal", 60, 62),
    Sketcher.Constraint("Equal", 59, 63),
    Sketcher.Constraint("Equal", 62, 64),
    Sketcher.Constraint("Equal", 57, 65),
    Sketcher.Constraint("Equal", 64, 66),
    Sketcher.Constraint("Equal", 63, 67),
    Sketcher.Constraint("Equal", 66, 68),
    Sketcher.Constraint("Equal", 65, 69),
    Sketcher.Constraint("Equal", 68, 70),
    Sketcher.Constraint("Equal", 67, 71),
    Sketcher.Constraint("Equal", 70, 72),
    Sketcher.Constraint("Equal", 69, 73),
    Sketcher.Constraint("Equal", 72, 74),
    Sketcher.Constraint("Equal", 71, 75),
    Sketcher.Constraint("Equal", 74, 76),
    Sketcher.Constraint("Equal", 73, 77),
    Sketcher.Constraint("Equal", 76, 78),
    Sketcher.Constraint("Equal", 75, 79),
    Sketcher.Constraint("Symmetric", 0, 3, 40, 3, -1, 1),
    Sketcher.Constraint("Symmetric", 2, 3, 42, 3, -1, 1),
    Sketcher.Constraint("Symmetric", 4, 3, 44, 3, -1, 1),
    Sketcher.Constraint("Symmetric", 6, 3, 46, 3, -1, 1),
    Sketcher.Constraint("Symmetric", 8, 3, 48, 3, -1, 1),
    Sketcher.Constraint("Symmetric", 10, 3, 50, 3, -1, 1),
    Sketcher.Constraint("Symmetric", 12, 3, 52, 3, -1, 1),
    Sketcher.Constraint("Symmetric", 14, 3, 54, 3, -1, 1),
    Sketcher.Constraint("Symmetric", 16, 3, 56, 3, -1, 1),
    Sketcher.Constraint("Symmetric", 18, 3, 58, 3, -1, 1),
    Sketcher.Constraint("Symmetric", 20, 3, 60, 3, -1, 1),
    Sketcher.Constraint("Symmetric", 22, 3, 62, 3, -1, 1),
    Sketcher.Constraint("Symmetric", 24, 3, 64, 3, -1, 1),
    Sketcher.Constraint("Symmetric", 26, 3, 66, 3, -1, 1),
    Sketcher.Constraint("Symmetric", 28, 3, 68, 3, -1, 1),
    Sketcher.Constraint("Symmetric", 30, 3, 70, 3, -1, 1),
    Sketcher.Constraint("Symmetric", 32, 3, 72, 3, -1, 1),
    Sketcher.Constraint("Symmetric", 34, 3, 74, 3, -1, 1),
    Sketcher.Constraint("Symmetric", 36, 3, 76, 3, -1, 1),
    Sketcher.Constraint("Symmetric", 38, 3, 78, 3, -1, 1),
    Sketcher.Constraint("Radius", 0, Q("4 mm")),
    Sketcher.Constraint("Radius", 1, Q("11.000001 mm")),
    Sketcher.Constraint("Radius", 9, Q("10.999999 mm")),
    Sketcher.Constraint("Diameter", 80, Q("2.5 mm")),
    Sketcher.Constraint("Radius", 3, Q("8.749 mm")),
    Sketcher.Constraint("DistanceX", -1, 1, 2, 3, Q("3.112102 mm")),
    Sketcher.Constraint("DistanceY", -1, 1, 10, 3, Q("9.002498 mm")),
    Sketcher.Constraint("DistanceY", -1, 1, 22, 3, Q("3.112102 mm")),
    Sketcher.Constraint("DistanceX", 30, 3, -1, 1, Q("9.002498 mm")),
    Sketcher.Constraint("DistanceX", 0, 3, -1, 1, Q("3.13645 mm")),
    Sketcher.Constraint("DistanceY", -1, 1, 0, 3, Q("8.858042 mm")),
    Sketcher.Constraint("DistanceY", -1, 1, 4, 3, Q("7.455282 mm")),
    Sketcher.Constraint("DistanceX", 10, 3, -1, 1, Q("2.693928 mm")),
    Sketcher.Constraint("DistanceX", 18, 3, -1, 1, Q("7.470969 mm")),
    Sketcher.Constraint("DistanceX", 20, 3, -1, 1, Q("8.858042 mm")),
    Sketcher.Constraint("DistanceY", 20, 3, -1, 1, Q("3.13645 mm")),
    Sketcher.Constraint("DistanceX", 24, 3, -1, 1, Q("7.455282 mm")),
    Sketcher.Constraint("DistanceY", 30, 3, -1, 1, Q("2.693928 mm")),
    Sketcher.Constraint("DistanceY", 38, 3, -1, 1, Q("7.470969 mm")),
    Sketcher.Constraint("DistanceX", 3, 2, -1, 1, Q("1.87192 mm")),
    Sketcher.Constraint("DistanceX", 5, 2, -1, 1, Q("3.658379 mm")),
    Sketcher.Constraint("DistanceX", 8, 2, -1, 1, Q("6.267121 mm")),
    Sketcher.Constraint("DistanceX", 11, 2, -1, 1, Q("6.537862 mm")),
    Sketcher.Constraint("DistanceY", -1, 1, 12, 2, Q("6.660988 mm")),
    Sketcher.Constraint("DistanceY", -1, 1, 13, 2, Q("6.24226 mm")),
    Sketcher.Constraint("DistanceX", 14, 2, -1, 1, Q("7.561771 mm")),
    Sketcher.Constraint("DistanceX", 15, 2, -1, 1, Q("8.014468 mm")),
    Sketcher.Constraint("DistanceY", -1, 1, 17, 2, Q("3.137891 mm")),
    Sketcher.Constraint("DistanceY", 23, 2, -1, 1, Q("1.87192 mm")),
    Sketcher.Constraint("DistanceY", 25, 2, -1, 1, Q("3.658379 mm")),
    Sketcher.Constraint("DistanceX", 28, 2, -1, 1, Q("9.040088 mm")),
    Sketcher.Constraint("DistanceY", 31, 2, -1, 1, Q("6.537862 mm")),
    Sketcher.Constraint("DistanceX", 32, 2, -1, 1, Q("6.660988 mm")),
    Sketcher.Constraint("DistanceX", 33, 2, -1, 1, Q("6.24226 mm")),
    Sketcher.Constraint("DistanceY", 34, 2, -1, 1, Q("7.561771 mm")),
    Sketcher.Constraint("DistanceX", 35, 2, -1, 1, Q("3.509032 mm")),
    Sketcher.Constraint("DistanceX", 37, 2, -1, 1, Q("3.137891 mm")),
    Sketcher.Constraint("DistanceY", -1, 1, 2, 3, Q("8.866625 mm")),
    Sketcher.Constraint("DistanceX", -1, 1, 6, 3, Q("0.219847 mm")),
    Sketcher.Constraint("DistanceX", 8, 3, -1, 1, Q("7.744068 mm")),
    Sketcher.Constraint("DistanceX", 16, 3, -1, 1, Q("9.393715 mm")),
    Sketcher.Constraint("DistanceX", 22, 3, -1, 1, Q("8.866625 mm")),
    Sketcher.Constraint("DistanceX", 26, 3, -1, 1, Q("9.394354 mm")),
    Sketcher.Constraint("DistanceX", 28, 3, -1, 1, Q("5.322747 mm")),
    Sketcher.Constraint("DistanceX", -1, 1, 36, 3, Q("0.245656 mm")),
])
pad3 = body.newObject("PartDesign::Pad", "Pad002")
pad3.Profile = sketch3
pad3.Length = 6

# Sketch on XZ plane
sketch4 = body.newObject("Sketcher::SketchObject", "Sketch003")
sketch4.AttachmentSupport = (doc.getObject("XZ_Plane"), [""])
sketch4.MapMode = "FlatFace"
sketch4.AttachmentOffset = App.Placement(Vector(0, 0, 6), App.Rotation())
sketch4.addGeometry([
    Part.Circle(Vector(0, 6.5, 0), Vector(0, 0, 1), 1.1),
    Part.Circle(Vector(0, -6.5, 0), Vector(0, 0, 1), 1.1),
], False)
sketch4.addConstraint([
    Sketcher.Constraint("Equal", 0, 1),
    Sketcher.Constraint("Symmetric", 0, 3, 1, 3, -1, 1),
    Sketcher.Constraint("PointOnObject", 0, 3, -2),
    Sketcher.Constraint("Diameter", 0, Q("2.2 mm")),
    Sketcher.Constraint("DistanceY", 1, 3, 0, 3, Q("13 mm")),
])
pocket1 = body.newObject("PartDesign::Pocket", "Pocket")
pocket1.Profile = sketch4
pocket1.Type = "ThroughAll"

# Sketch on XY plane
sketch5 = body.newObject("Sketcher::SketchObject", "Sketch004")
sketch5.AttachmentSupport = (doc.getObject("XY_Plane"), [""])
sketch5.MapMode = "FlatFace"
sketch5.AttachmentOffset = App.Placement(Vector(0, 0, 91), App.Rotation())
add_polygon(sketch5, [(10, -20), (-18, -10), (-18, -20)])  # lines 0-2
sketch5.addConstraint([
    Sketcher.Constraint("Vertical", 1),
    Sketcher.Constraint("Horizontal", 2),
    Sketcher.Constraint("DistanceX", 2, 1, 2, 2, Q("28 mm")),
    Sketcher.Constraint("DistanceY", 1, 2, 1, 1, Q("10 mm")),
    Sketcher.Constraint("DistanceX", 0, 2, -1, 1, Q("18 mm")),
    Sketcher.Constraint("DistanceY", 0, 2, -1, 1, Q("10 mm")),
])
pad4 = body.newObject("PartDesign::Pad", "Pad003")
pad4.Profile = sketch5
pad4.Length = 76
pad4.Reversed = True

# Sketch on XY plane
sketch6 = body.newObject("Sketcher::SketchObject", "Sketch005")
sketch6.AttachmentSupport = (doc.getObject("XY_Plane"), [""])
sketch6.MapMode = "FlatFace"
sketch6.AttachmentOffset = App.Placement(Vector(0, 0, 91), App.Rotation())
sketch6.addGeometry([
    Part.LineSegment(Vector(4.9, -19.98, 0), Vector(-17.21, -15.17, 0)),  # 0
    Part.ArcOfCircle(Part.Circle(Vector(-17, -14.19, 0), Vector(0, 0, 1), 1), math.radians(180), math.radians(258)),  # 1
    Part.LineSegment(Vector(-18, -14.19, 0), Vector(-18, -20.31, 0)),  # 2
    Part.LineSegment(Vector(-18, -20.31, 0), Vector(5.11, -20.31, 0)),  # 3
    Part.LineSegment(Vector(5.11, -20.31, 0), Vector(5.11, -20, 0)),  # 4
    Part.ArcOfCircle(Part.Circle(Vector(5.11, -19, 0), Vector(0, 0, 1), 1), math.radians(-102.26), math.radians(-90)),  # 5
], False)
sketch6.addConstraint([
    Sketcher.Constraint("Tangent", 0, 2, 1, 2),
    Sketcher.Constraint("Tangent", 1, 1, 2, 1),
    Sketcher.Constraint("Coincident", 2, 2, 3, 1),
    Sketcher.Constraint("Coincident", 3, 2, 4, 1),
    Sketcher.Constraint("Coincident", 4, 2, 5, 2),
    Sketcher.Constraint("Tangent", 5, 1, 0, 1),
    Sketcher.Constraint("Vertical", 2),
    Sketcher.Constraint("Horizontal", 3),
    Sketcher.Constraint("Vertical", 4),
    Sketcher.Constraint("Equal", 1, 5),
    Sketcher.Constraint("Vertical", 5, 3, 3, 2),
    Sketcher.Constraint("Radius", 1, Q("1 mm")),
    Sketcher.Constraint("DistanceX", 1, 3, -1, 1, Q("17 mm")),
    Sketcher.Constraint("DistanceY", 5, 3, -1, 1, Q("19 mm")),
    Sketcher.Constraint("Distance", 0, Q("22.623798 mm")),
    Sketcher.Constraint("DistanceX", 3, 1, 3, 2, Q("23.107441 mm")),
    Sketcher.Constraint("DistanceY", 2, 2, 2, 1, Q("6.11272 mm")),
])
pocket2 = body.newObject("PartDesign::Pocket", "Pocket001")
pocket2.Profile = sketch6
pocket2.Length = 76

doc.recompute()
